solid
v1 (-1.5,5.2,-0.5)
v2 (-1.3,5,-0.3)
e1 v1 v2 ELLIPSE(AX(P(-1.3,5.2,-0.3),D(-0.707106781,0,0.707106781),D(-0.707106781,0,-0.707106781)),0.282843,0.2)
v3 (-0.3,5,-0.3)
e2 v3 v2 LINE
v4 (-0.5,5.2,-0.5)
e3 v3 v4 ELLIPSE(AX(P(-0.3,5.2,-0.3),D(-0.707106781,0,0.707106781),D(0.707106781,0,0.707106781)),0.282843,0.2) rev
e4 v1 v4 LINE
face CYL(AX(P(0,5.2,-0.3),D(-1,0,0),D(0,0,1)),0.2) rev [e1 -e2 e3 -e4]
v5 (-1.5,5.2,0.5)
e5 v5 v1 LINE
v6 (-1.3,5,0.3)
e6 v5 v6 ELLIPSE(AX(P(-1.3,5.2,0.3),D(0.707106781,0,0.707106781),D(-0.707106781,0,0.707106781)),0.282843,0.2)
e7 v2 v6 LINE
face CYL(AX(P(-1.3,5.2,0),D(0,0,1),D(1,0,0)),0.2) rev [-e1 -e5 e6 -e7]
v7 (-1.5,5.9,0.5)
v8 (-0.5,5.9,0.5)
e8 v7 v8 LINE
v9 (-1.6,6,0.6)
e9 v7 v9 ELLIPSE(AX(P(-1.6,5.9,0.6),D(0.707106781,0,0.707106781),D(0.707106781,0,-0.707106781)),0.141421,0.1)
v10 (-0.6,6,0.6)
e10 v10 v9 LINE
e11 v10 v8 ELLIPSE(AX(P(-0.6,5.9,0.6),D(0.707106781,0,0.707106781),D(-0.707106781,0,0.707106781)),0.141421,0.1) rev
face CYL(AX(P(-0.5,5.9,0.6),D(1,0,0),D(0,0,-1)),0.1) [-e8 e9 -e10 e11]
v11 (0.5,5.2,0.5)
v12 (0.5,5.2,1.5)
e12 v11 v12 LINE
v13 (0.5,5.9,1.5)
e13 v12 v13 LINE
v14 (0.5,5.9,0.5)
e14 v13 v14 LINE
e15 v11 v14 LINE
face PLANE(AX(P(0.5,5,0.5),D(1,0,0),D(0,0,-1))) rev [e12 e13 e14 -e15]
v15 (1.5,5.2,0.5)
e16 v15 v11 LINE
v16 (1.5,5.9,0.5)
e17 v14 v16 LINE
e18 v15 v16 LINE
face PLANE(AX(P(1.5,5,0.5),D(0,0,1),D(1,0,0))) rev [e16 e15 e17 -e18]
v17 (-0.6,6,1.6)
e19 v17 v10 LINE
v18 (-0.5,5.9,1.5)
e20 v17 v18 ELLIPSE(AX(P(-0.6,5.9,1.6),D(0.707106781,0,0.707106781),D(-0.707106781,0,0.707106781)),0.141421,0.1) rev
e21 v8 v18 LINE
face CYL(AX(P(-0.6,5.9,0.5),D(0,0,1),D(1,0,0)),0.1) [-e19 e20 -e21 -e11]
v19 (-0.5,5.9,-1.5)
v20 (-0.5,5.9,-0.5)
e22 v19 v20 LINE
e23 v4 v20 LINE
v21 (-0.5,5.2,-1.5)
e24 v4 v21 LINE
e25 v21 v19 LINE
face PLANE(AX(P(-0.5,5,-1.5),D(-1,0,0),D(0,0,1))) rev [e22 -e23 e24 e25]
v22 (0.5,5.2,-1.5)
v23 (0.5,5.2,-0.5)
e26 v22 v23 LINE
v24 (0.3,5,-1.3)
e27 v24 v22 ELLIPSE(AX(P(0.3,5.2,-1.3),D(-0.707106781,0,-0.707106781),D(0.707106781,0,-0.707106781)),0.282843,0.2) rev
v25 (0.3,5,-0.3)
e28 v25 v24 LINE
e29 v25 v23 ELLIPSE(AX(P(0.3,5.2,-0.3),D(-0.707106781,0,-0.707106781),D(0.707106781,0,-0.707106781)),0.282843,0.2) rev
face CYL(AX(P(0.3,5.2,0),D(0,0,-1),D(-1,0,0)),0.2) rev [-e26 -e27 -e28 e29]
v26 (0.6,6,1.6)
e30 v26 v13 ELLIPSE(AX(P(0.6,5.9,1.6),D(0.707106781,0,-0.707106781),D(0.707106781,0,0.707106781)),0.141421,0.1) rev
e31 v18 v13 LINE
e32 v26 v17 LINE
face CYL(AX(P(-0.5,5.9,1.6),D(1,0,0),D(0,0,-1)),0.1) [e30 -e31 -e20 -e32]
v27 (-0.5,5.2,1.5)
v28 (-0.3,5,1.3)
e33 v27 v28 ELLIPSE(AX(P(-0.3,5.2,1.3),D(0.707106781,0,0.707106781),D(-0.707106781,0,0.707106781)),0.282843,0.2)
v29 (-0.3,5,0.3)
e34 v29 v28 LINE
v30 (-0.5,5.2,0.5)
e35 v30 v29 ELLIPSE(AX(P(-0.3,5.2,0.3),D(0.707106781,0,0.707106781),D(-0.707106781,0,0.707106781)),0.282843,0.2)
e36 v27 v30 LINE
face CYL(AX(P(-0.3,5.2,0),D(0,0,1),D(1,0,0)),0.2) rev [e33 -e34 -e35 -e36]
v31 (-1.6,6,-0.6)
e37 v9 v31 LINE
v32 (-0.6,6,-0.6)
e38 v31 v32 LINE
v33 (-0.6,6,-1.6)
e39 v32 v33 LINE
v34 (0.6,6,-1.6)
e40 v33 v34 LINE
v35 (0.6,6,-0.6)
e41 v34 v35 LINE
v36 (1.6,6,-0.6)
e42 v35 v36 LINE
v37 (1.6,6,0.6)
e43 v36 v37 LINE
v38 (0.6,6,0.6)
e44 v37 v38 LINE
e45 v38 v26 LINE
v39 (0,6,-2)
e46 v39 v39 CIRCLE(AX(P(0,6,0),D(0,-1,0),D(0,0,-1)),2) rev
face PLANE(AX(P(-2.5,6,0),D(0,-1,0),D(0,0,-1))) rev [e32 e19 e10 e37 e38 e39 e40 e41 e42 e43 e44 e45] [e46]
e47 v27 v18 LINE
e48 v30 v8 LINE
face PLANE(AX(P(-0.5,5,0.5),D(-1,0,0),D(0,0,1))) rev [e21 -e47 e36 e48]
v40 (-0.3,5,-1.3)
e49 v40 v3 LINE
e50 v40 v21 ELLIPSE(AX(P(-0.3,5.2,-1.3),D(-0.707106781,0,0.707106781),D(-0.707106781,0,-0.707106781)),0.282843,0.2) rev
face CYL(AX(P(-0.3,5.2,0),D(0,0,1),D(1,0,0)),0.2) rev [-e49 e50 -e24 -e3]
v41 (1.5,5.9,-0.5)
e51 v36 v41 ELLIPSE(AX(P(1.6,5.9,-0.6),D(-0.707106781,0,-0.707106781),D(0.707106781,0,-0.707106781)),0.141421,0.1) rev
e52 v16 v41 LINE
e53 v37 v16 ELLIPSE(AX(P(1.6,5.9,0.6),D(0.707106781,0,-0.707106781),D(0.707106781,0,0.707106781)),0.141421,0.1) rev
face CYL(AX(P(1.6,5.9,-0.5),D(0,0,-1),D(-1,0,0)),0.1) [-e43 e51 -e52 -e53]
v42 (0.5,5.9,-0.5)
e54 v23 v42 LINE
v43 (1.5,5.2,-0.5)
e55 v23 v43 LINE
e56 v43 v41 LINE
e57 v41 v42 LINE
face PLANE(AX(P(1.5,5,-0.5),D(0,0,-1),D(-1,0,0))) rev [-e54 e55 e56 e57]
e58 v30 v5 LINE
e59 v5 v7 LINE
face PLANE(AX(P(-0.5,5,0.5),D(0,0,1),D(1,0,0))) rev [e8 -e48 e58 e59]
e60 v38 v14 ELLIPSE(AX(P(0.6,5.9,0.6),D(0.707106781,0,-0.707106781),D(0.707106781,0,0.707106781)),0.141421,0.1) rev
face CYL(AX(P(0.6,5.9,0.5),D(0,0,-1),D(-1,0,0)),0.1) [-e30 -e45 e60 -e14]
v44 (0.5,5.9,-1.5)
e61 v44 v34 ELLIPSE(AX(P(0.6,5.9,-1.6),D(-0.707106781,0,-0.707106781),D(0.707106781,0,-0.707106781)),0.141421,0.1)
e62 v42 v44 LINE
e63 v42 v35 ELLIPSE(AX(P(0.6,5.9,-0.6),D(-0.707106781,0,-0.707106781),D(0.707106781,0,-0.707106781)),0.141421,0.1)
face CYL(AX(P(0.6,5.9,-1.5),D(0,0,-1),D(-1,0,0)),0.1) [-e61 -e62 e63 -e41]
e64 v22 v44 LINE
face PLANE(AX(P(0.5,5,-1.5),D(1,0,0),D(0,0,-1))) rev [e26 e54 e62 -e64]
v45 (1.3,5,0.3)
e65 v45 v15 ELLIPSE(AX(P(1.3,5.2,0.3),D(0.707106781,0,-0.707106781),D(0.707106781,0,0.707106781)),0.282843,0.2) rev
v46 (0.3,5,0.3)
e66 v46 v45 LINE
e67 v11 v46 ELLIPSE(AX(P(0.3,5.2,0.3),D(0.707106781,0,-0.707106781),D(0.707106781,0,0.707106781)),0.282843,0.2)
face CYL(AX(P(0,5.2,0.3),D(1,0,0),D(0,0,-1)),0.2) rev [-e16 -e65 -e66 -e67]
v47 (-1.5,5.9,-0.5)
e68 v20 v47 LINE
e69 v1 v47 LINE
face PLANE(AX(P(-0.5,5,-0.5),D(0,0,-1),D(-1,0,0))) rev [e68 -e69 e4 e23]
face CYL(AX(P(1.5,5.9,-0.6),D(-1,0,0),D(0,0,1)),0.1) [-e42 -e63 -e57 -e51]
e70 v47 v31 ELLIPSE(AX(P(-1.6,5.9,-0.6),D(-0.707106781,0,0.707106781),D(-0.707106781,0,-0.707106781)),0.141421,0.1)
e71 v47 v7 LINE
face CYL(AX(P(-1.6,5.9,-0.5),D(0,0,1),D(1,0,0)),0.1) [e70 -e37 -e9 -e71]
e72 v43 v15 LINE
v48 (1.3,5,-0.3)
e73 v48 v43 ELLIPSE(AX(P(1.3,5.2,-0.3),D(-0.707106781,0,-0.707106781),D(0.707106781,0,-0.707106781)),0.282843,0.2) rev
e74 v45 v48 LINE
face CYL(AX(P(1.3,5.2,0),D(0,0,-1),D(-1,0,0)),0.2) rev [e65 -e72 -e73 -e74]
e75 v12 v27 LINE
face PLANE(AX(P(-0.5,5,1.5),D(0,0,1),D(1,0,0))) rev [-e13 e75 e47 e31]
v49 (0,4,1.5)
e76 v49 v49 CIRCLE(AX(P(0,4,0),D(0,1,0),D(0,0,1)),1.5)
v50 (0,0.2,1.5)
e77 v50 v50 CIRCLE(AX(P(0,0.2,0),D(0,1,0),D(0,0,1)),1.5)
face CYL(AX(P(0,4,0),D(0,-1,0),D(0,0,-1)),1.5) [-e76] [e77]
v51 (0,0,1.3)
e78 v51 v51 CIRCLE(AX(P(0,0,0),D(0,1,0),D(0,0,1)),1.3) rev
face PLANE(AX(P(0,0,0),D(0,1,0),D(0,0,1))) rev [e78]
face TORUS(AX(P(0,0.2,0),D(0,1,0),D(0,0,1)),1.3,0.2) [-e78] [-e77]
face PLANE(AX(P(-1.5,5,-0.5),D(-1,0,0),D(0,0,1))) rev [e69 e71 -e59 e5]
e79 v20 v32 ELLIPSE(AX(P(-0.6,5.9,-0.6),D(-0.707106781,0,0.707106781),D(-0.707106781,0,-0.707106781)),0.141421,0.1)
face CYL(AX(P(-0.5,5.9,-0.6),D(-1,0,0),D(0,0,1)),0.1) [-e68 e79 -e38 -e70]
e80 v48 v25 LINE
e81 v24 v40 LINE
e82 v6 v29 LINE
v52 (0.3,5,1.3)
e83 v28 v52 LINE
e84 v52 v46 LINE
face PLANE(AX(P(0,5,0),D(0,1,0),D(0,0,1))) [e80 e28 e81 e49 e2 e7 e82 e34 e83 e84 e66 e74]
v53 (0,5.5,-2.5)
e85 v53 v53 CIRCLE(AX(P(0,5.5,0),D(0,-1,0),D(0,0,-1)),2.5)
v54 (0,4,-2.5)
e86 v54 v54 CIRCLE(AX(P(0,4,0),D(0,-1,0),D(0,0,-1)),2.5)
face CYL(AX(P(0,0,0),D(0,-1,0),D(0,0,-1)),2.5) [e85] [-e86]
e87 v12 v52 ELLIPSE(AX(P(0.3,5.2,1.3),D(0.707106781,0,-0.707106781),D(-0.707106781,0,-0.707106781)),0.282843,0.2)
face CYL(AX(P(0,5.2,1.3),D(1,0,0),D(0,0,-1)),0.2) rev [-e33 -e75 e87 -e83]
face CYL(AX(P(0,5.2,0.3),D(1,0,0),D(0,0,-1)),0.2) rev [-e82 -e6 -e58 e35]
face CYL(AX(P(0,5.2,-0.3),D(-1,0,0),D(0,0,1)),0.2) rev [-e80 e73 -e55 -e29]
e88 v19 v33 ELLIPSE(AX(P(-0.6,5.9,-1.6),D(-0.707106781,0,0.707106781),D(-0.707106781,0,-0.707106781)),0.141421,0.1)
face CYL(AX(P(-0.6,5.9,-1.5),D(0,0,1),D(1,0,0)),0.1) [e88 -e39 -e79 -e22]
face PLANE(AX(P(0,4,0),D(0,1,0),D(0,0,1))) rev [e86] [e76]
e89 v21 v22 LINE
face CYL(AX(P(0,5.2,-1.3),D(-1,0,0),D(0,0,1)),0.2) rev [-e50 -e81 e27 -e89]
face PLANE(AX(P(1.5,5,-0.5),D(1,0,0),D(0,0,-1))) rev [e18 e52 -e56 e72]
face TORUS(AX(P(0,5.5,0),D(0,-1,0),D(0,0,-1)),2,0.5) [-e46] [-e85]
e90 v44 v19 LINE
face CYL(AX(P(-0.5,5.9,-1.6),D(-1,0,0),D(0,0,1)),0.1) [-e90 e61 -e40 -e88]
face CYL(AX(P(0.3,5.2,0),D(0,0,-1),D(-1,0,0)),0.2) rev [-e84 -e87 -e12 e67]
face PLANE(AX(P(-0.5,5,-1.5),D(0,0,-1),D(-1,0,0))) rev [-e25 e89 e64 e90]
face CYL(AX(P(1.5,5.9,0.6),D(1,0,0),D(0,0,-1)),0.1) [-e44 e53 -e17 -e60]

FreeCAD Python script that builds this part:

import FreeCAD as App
import Part
import Sketcher

V = App.Vector


def edges_at(feature, points):
    """Names of the edges that pass closest to the given points."""
    edges = feature.Shape.Edges
    near = lambda p: min(range(len(edges)), key=lambda i: edges[i].distToShape(Part.Vertex(*p))[0])
    return sorted({f"Edge{near(p) + 1}" for p in points})

doc = App.newDocument("Part")
body = doc.addObject("PartDesign::Body", "Body")

# Sketch on XZ plane
sketch1 = body.newObject("Sketcher::SketchObject", "Sketch")
sketch1.AttachmentSupport = (doc.getObject("XZ_Plane"), [""])
sketch1.MapMode = "FlatFace"
sketch1.addGeometry(Part.Circle(V(0, 0, 0), V(0, 0, 1), 1.5), False)
sketch1.addConstraint([
    Sketcher.Constraint("Coincident", 0, 3, -1, 1),
    Sketcher.Constraint("Diameter", 0, 3.0),
])
pad1 = body.newObject("PartDesign::Pad", "Pad")
pad1.Profile = sketch1
pad1.Length = 4
pad1.Reversed = True
doc.recompute()

fillet = body.newObject("PartDesign::Fillet", "Fillet")
fillet.Base = (pad1, edges_at(pad1, [(0, 0, -1.5)]))
fillet.Radius = 0.2

# Sketch on XY plane
sketch2 = body.newObject("Sketcher::SketchObject", "Sketch001")
sketch2.AttachmentSupport = (doc.getObject("XY_Plane"), [""])
sketch2.MapMode = "FlatFace"
sketch2.addGeometry([
    Part.LineSegment(V(-2.5, 6, 0), V(-2.5, 4, 0)),
    Part.LineSegment(V(-2.5, 4, 0), V(0, 4, 0)),
    Part.LineSegment(V(0, 4, 0), V(0, 6, 0)),
    Part.LineSegment(V(0, 6, 0), V(-2.5, 6, 0)),
], False)
sketch2.addConstraint([
    Sketcher.Constraint("Coincident", 0, 2, 1, 1),
    Sketcher.Constraint("Coincident", 1, 2, 2, 1),
    Sketcher.Constraint("Coincident", 2, 2, 3, 1),
    Sketcher.Constraint("Coincident", 3, 2, 0, 1),
    Sketcher.Constraint("Vertical", 0),
    Sketcher.Constraint("Horizontal", 1),
    Sketcher.Constraint("Vertical", 2),
    Sketcher.Constraint("Horizontal", 3),
    Sketcher.Constraint("PointOnObject", 1, 2, -2),
    Sketcher.Constraint("DistanceY", 0, 2, 0, 1, 2.0),
    Sketcher.Constraint("DistanceX", 1, 1, 1, 2, 2.5),
    Sketcher.Constraint("DistanceY", -1, 1, 0, 2, 4.0),
])
revolution = body.newObject("PartDesign::Revolution", "Revolution")
revolution.Profile = sketch2
revolution.ReferenceAxis = (sketch2, ["V_Axis"])
revolution.Angle = 360

# Sketch on XZ plane
sketch3 = body.newObject("Sketcher::SketchObject", "Sketch002")
sketch3.AttachmentSupport = (doc.getObject("XZ_Plane"), [""])
sketch3.MapMode = "FlatFace"
sketch3.AttachmentOffset = App.Placement(V(0, 0, -6), App.Rotation())
sketch3.addGeometry([
    Part.LineSegment(V(-0.5, -0.5, 0), V(-1.5, -0.5, 0)),  # 0
    Part.LineSegment(V(-1.5, -0.5, 0), V(-1.5, 0.5, 0)),  # 1
    Part.LineSegment(V(-1.5, 0.5, 0), V(-0.5, 0.5, 0)),  # 2
    Part.LineSegment(V(-0.5, 0.5, 0), V(-0.5, 1.5, 0)),  # 3
    Part.LineSegment(V(-0.5, 1.5, 0), V(0.5, 1.5, 0)),  # 4
    Part.LineSegment(V(0.5, 1.5, 0), V(0.5, 0.5, 0)),  # 5
    Part.LineSegment(V(0.5, 0.5, 0), V(1.5, 0.5, 0)),  # 6
    Part.LineSegment(V(1.5, 0.5, 0), V(1.5, -0.5, 0)),  # 7
    Part.LineSegment(V(1.5, -0.5, 0), V(0.5, -0.5, 0)),  # 8
    Part.LineSegment(V(0.5, -0.5, 0), V(0.5, -1.5, 0)),  # 9
    Part.LineSegment(V(0.5, -1.5, 0), V(-0.5, -1.5, 0)),  # 10
    Part.LineSegment(V(-0.5, -1.5, 0), V(-0.5, -0.5, 0)),  # 11
], False)
sketch3.addConstraint([
    Sketcher.Constraint("Coincident", 0, 2, 1, 1),
    Sketcher.Constraint("Coincident", 1, 2, 2, 1),
    Sketcher.Constraint("Coincident", 2, 2, 3, 1),
    Sketcher.Constraint("Coincident", 3, 2, 4, 1),
    Sketcher.Constraint("Coincident", 4, 2, 5, 1),
    Sketcher.Constraint("Coincident", 5, 2, 6, 1),
    Sketcher.Constraint("Coincident", 6, 2, 7, 1),
    Sketcher.Constraint("Coincident", 7, 2, 8, 1),
    Sketcher.Constraint("Coincident", 8, 2, 9, 1),
    Sketcher.Constraint("Coincident", 9, 2, 10, 1),
    Sketcher.Constraint("Coincident", 10, 2, 11, 1),
    Sketcher.Constraint("Coincident", 11, 2, 0, 1),
    Sketcher.Constraint("Horizontal", 0),
    Sketcher.Constraint("Vertical", 1),
    Sketcher.Constraint("Horizontal", 2),
    Sketcher.Constraint("Vertical", 3),
    Sketcher.Constraint("Horizontal", 4),
    Sketcher.Constraint("Vertical", 5),
    Sketcher.Constraint("Horizontal", 6),
    Sketcher.Constraint("Vertical", 7),
    Sketcher.Constraint("Horizontal", 8),
    Sketcher.Constraint("Vertical", 9),
    Sketcher.Constraint("Horizontal", 10),
    Sketcher.Constraint("Vertical", 11),
    Sketcher.Constraint("Symmetric", 0, 2, 6, 2, -1, 1),
    Sketcher.Constraint("Symmetric", 2, 2, 8, 2, -1, 1),
    Sketcher.Constraint("Symmetric", 4, 2, 10, 2, -1, 1),
    Sketcher.Constraint("Symmetric", 2, 2, 5, 2, -2),
    Sketcher.Constraint("Equal", 2, 4),
    Sketcher.Constraint("Equal", 10, 1),
    Sketcher.Constraint("Equal", 1, 3),
    Sketcher.Constraint("DistanceX", 0, 2, 0, 1, 1.0),
])
pocket1 = body.newObject("PartDesign::Pocket", "Pocket")
pocket1.Profile = sketch3
pocket1.Length = 1
pocket1.Reversed = True
doc.recompute()

fillet2 = body.newObject("PartDesign::Fillet", "Fillet001")
fillet2.Base = (pocket1, edges_at(pocket1, [
    (0.5, 6, 1),
    (1, 6, 0.5),
    (1.5, 6, 0),
    (1, 6, -0.5),
    (0.5, 6, -1),
    (0, 6, -1.5),
    (-0.5, 6, -1),
    (-1, 6, -0.5),
    (-1.5, 6, 0),
    (-1, 6, 0.5),
    (-0.5, 6, 1),
    (0, 6, 1.5),
]))
fillet2.Radius = 0.1
doc.recompute()

fillet3 = body.newObject("PartDesign::Fillet", "Fillet002")
fillet3.Base = (fillet2, edges_at(fillet2, [
    (0.5, 5, 1),
    (0, 5, 1.5),
    (-0.5, 5, 1),
    (-1, 5, 0.5),
    (-1.5, 5, 0),
    (-1, 5, -0.5),
    (-0.5, 5, -1),
    (0, 5, -1.5),
    (0.5, 5, -1),
    (1, 5, -0.5),
    (1.5, 5, 0),
    (1, 5, 0.5),
]))
fillet3.Radius = 0.2
doc.recompute()

fillet4 = body.newObject("PartDesign::Fillet", "Fillet003")
fillet4.Base = (fillet3, edges_at(fillet3, [(0, 6, 2.5)]))
fillet4.Radius = 0.5

doc.recompute()
